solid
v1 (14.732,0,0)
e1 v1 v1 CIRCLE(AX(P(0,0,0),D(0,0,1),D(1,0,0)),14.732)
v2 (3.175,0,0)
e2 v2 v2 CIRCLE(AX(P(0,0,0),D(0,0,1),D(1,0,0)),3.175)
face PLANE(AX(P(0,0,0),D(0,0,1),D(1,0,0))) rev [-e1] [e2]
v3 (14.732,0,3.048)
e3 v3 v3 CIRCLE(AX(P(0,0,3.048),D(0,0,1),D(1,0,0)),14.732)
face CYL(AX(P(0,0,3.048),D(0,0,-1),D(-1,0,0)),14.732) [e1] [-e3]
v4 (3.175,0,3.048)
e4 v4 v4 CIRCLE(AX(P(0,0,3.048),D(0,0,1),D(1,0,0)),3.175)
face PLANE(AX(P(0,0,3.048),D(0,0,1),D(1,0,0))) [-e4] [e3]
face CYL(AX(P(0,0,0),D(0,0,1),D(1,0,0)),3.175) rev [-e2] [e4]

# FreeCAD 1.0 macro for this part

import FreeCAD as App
import Part
import Sketcher
Q = App.Units.Quantity

doc = App.newDocument("Part")
params = doc.addObject("Spreadsheet::Sheet", "Params")
for row, (alias, value) in enumerate([
    ("sketch1_diameter", "1.16 in"),
    ("pad1_length", "0.12 in"),
    ("sketch2_diameter", "0.25 in"),
    ("pocket1_length", "0.12 in"),
], start=1):
    params.set(f"A{row}", alias)
    params.set(f"B{row}", "=" + value)
    params.setAlias(f"B{row}", alias)

body = doc.addObject("PartDesign::Body", "Body")

# Sketch on XY plane
sketch1 = body.newObject("Sketcher::SketchObject", "Sketch")
sketch1.AttachmentSupport = (doc.getObject("XY_Plane"), [""])
sketch1.MapMode = "FlatFace"
sketch1.addGeometry(Part.Circle(App.Vector(0, 0, 0), App.Vector(0, 0, 1), 15), False)
sketch1.addConstraint(Sketcher.Constraint("Coincident", 0, 3, -1, 1))
sketch1.addConstraint(Sketcher.Constraint("Diameter", 0, Q("1.16 in")))
sketch1.setExpression("Constraints[1]", "Params.sketch1_diameter")
pad1 = body.newObject("PartDesign::Pad", "Pad")
pad1.Profile = sketch1
pad1.setExpression("Length", "Params.pad1_length")

# Sketch on XY plane
sketch2 = body.newObject("Sketcher::SketchObject", "Sketch001")
sketch2.AttachmentSupport = (doc.getObject("XY_Plane"), [""])
sketch2.MapMode = "FlatFace"
sketch2.AttachmentOffset = App.Placement(App.Vector(0, 0, 0.12 * 25.4), App.Rotation())
sketch2.addGeometry(Part.Circle(App.Vector(0, 0, 0), App.Vector(0, 0, 1), 3.2), False)
sketch2.addConstraint(Sketcher.Constraint("Coincident", 0, 3, -1, 1))
sketch2.addConstraint(Sketcher.Constraint("Diameter", 0, Q("0.25 in")))
sketch2.setExpression("Constraints[1]", "Params.sketch2_diameter")
pocket1 = body.newObject("PartDesign::Pocket", "Pocket")
pocket1.Profile = sketch2
pocket1.setExpression("Length", "Params.pocket1_length")

doc.recompute()
